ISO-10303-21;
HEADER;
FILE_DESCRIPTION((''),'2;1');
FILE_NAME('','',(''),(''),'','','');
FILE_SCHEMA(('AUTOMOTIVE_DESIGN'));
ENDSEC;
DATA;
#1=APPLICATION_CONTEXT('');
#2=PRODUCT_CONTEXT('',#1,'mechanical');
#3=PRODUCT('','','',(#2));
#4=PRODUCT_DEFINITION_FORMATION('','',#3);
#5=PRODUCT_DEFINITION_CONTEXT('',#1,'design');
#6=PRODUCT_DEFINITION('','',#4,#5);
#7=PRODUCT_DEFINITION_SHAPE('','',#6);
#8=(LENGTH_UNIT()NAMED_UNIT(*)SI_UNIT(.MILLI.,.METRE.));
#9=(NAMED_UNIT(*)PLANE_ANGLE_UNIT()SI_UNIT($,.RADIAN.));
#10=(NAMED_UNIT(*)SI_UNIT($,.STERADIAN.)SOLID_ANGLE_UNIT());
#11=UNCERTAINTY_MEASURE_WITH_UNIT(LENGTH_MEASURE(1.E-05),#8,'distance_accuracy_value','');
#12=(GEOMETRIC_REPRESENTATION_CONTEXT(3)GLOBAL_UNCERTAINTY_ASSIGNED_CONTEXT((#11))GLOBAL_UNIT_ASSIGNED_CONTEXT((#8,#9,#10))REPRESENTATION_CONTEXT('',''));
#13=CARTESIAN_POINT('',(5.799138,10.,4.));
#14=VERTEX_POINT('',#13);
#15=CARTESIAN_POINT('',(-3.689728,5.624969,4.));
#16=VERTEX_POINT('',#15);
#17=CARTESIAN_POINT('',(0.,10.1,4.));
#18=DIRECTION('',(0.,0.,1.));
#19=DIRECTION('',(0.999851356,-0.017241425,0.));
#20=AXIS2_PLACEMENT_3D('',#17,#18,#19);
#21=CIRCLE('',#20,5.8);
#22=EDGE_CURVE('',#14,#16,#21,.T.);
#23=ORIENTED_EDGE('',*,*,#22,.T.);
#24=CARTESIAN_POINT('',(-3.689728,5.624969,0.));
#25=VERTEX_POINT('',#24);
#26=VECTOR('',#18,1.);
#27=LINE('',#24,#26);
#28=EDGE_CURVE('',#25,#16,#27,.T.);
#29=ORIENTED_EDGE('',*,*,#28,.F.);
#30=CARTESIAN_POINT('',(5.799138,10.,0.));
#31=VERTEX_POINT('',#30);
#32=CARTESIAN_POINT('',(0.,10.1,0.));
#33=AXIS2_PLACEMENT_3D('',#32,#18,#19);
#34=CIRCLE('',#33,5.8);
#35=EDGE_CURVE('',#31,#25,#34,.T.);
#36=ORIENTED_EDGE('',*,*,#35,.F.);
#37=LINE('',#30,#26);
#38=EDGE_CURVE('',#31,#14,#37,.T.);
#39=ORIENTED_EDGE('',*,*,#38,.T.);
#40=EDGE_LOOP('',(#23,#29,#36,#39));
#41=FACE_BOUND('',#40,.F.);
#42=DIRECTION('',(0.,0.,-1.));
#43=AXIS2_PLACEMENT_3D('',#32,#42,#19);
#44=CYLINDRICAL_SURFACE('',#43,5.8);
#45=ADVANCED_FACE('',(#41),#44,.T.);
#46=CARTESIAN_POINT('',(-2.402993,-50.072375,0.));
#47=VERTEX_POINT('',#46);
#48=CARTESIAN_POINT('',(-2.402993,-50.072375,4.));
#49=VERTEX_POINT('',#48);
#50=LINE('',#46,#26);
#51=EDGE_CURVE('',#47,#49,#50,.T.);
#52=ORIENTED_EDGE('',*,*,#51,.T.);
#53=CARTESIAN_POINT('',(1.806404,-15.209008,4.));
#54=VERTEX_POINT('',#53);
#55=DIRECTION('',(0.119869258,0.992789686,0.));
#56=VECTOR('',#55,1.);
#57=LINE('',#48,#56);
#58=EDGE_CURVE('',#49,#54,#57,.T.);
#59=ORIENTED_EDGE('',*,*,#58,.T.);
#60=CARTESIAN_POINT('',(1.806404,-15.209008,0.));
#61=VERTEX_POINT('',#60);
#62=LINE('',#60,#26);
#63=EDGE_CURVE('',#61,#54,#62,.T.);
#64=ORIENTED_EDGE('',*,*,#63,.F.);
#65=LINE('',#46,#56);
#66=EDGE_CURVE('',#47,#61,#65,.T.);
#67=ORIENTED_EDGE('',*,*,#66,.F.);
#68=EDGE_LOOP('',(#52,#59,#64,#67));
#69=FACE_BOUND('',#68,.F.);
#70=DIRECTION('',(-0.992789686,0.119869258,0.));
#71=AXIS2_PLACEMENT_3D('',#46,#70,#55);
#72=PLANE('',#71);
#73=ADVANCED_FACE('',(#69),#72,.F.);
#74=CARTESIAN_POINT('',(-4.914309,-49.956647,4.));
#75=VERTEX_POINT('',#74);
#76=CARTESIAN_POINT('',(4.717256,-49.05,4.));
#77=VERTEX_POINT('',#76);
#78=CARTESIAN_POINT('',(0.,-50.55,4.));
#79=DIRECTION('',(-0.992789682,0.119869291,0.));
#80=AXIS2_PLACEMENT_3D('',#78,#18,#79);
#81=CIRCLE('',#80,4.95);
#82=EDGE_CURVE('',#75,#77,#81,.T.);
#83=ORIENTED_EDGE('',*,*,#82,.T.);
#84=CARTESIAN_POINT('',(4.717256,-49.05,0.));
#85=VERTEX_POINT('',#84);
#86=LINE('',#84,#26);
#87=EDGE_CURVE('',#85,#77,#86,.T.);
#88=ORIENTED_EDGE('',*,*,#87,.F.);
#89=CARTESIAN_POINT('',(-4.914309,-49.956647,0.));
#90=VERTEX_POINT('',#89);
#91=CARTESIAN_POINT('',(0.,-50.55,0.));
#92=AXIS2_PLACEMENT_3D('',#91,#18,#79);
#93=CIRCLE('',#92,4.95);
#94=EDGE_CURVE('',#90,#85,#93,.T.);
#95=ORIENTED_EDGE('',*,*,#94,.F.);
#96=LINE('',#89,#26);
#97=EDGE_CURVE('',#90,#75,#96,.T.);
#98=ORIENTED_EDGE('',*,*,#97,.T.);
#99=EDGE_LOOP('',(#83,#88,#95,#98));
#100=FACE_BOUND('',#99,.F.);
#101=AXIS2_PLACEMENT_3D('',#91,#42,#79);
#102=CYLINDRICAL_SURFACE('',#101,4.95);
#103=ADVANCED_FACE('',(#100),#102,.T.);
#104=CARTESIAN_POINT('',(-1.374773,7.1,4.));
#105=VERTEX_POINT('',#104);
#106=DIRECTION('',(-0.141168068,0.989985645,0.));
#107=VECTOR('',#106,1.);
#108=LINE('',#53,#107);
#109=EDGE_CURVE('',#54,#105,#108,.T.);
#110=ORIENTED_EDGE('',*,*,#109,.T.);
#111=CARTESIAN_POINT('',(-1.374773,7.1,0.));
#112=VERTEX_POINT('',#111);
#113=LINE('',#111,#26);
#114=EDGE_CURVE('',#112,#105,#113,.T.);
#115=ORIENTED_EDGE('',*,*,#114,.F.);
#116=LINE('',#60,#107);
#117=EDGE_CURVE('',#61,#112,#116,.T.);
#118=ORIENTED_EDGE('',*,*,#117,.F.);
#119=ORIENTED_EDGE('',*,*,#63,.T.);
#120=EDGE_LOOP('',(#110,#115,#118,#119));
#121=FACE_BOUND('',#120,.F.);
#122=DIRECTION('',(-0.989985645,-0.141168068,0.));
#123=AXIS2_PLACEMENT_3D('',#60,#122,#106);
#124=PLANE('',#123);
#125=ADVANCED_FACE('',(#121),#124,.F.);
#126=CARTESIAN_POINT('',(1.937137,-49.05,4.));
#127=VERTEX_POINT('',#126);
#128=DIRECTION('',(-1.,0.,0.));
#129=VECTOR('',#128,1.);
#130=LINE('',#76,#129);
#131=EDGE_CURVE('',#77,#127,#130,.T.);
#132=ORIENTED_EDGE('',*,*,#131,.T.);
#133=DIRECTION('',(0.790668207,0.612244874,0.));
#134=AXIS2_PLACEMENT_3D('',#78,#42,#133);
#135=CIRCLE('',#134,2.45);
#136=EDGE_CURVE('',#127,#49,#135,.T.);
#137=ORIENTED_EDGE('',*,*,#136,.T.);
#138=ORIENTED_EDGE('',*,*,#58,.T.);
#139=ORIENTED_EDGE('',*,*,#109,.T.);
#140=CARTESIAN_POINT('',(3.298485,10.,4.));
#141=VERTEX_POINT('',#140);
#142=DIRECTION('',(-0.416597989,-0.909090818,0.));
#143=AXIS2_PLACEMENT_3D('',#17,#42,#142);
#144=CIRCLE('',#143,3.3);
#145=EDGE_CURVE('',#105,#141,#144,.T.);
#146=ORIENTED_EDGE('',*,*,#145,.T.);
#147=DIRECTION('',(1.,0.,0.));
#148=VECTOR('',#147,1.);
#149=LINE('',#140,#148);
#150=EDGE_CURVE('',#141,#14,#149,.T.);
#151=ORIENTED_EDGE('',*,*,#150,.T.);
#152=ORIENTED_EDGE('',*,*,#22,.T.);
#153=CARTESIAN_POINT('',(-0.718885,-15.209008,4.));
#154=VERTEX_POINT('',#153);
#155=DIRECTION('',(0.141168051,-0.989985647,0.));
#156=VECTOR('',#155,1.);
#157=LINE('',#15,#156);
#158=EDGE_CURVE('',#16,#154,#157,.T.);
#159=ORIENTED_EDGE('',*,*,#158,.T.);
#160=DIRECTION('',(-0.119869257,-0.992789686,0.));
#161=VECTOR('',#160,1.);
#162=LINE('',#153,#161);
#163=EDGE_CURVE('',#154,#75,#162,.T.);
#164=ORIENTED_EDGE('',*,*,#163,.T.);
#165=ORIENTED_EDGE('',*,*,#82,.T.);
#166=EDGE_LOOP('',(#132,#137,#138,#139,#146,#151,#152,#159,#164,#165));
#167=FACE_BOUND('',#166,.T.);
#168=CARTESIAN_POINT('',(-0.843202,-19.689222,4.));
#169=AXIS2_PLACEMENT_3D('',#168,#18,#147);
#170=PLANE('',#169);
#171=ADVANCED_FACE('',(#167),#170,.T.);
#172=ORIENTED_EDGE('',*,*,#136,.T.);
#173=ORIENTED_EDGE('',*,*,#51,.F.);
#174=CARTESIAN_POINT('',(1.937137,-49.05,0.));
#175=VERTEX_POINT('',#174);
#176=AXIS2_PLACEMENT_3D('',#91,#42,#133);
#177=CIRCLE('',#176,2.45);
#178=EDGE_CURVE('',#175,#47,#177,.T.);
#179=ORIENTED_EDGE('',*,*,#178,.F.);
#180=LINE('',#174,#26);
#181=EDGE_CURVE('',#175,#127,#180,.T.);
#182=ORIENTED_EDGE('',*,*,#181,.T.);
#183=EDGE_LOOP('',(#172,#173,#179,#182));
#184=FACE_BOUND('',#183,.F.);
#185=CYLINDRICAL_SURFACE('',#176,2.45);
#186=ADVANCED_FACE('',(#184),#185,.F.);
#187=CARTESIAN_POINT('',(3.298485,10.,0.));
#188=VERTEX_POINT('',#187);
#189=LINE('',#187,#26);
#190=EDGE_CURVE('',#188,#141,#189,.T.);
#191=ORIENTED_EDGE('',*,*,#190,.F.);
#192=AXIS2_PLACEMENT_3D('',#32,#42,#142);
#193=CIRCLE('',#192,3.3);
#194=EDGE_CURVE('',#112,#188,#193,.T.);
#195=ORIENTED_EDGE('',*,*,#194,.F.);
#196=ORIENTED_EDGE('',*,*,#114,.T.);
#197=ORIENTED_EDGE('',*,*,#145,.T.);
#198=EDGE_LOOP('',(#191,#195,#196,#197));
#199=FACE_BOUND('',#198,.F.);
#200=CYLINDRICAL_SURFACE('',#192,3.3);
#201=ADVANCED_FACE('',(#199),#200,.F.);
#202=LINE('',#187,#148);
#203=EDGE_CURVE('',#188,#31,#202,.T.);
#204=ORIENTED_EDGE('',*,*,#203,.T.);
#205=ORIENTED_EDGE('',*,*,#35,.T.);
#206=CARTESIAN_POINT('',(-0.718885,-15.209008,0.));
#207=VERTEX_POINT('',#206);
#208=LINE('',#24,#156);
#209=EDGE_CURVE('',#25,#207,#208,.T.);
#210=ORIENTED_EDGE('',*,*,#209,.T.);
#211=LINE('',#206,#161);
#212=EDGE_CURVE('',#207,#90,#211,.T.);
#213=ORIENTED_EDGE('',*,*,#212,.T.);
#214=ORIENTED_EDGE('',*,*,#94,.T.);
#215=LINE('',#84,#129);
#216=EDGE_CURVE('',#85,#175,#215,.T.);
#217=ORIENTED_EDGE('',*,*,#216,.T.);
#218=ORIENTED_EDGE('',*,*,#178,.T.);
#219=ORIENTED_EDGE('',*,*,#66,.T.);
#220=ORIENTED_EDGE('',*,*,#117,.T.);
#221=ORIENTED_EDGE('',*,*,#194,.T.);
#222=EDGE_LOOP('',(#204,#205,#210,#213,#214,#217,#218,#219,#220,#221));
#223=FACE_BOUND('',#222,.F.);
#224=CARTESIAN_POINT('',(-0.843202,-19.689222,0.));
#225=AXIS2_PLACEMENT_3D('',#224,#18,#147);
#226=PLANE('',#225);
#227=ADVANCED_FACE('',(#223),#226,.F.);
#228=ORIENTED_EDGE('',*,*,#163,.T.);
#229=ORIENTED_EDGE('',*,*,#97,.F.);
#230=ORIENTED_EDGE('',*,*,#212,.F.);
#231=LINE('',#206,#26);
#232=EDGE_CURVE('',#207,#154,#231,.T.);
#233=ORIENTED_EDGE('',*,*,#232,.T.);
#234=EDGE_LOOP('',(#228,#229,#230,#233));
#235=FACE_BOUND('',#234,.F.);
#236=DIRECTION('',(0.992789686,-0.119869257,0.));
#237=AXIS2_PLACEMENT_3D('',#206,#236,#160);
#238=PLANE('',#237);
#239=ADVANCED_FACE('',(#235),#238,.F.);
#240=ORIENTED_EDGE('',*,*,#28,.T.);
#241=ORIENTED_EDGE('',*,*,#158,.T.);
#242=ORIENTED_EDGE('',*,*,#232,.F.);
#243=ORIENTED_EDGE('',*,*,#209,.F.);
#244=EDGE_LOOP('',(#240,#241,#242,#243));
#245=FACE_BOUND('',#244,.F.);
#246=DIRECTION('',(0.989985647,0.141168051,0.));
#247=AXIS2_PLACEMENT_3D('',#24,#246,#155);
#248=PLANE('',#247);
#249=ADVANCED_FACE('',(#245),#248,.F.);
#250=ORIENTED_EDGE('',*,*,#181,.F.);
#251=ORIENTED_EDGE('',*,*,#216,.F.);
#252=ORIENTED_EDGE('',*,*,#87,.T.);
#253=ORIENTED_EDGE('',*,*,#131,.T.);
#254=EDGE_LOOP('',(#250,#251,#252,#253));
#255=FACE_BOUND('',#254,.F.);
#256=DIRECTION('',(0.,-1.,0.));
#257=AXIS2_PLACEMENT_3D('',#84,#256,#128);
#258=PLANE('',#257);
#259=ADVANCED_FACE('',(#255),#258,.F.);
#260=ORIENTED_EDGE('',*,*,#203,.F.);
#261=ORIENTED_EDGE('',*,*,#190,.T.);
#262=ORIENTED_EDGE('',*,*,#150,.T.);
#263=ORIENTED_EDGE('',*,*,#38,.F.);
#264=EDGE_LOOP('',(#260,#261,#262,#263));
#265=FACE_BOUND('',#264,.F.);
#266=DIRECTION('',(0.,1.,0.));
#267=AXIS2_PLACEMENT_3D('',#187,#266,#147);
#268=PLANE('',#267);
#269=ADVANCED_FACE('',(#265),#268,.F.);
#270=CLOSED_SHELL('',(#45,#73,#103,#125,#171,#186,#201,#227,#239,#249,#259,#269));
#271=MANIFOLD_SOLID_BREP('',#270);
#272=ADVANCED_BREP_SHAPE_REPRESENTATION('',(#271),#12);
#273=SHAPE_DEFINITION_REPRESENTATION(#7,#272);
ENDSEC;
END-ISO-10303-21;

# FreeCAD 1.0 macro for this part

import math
import FreeCAD as App
import Part
import Sketcher

V = App.Vector
Q = App.Units.Quantity

doc = App.newDocument("Part")
body = doc.addObject("PartDesign::Body", "Body")

sketch1 = body.newObject("Sketcher::SketchObject", "Sketch")
sketch1.AttachmentSupport = (doc.getObject("XY_Plane"), [""])
sketch1.MapMode = "FlatFace"
sketch1.addGeometry([
    Part.ArcOfCircle(Part.Circle(V(0, 10.1, 0), V(0, 0, 1), 3.3), math.radians(-2), math.radians(245)),
    Part.LineSegment(V(3.3, 10, 0), V(5.8, 10, 0)),
    Part.ArcOfCircle(Part.Circle(V(0, 10.1, 0), V(0, 0, 1), 5.8), math.radians(-1), math.radians(230)),
    Part.LineSegment(V(-3.7, 5.6, 0), V(-0.7, -15.2, 0)),
    Part.LineSegment(V(-0.7, -15.2, 0), V(-4.9, -50, 0)),
    Part.ArcOfCircle(Part.Circle(V(0, -50.6, 0), V(0, 0, 1), 5), math.radians(173), math.radians(378)),
    Part.LineSegment(V(4.7, -49, 0), V(1.9, -49, 0)),
    Part.ArcOfCircle(Part.Circle(V(0, -50.5, 0), V(0, 0, 1), 2.5), math.radians(169), math.radians(398)),
    Part.LineSegment(V(-2.4, -50.1, 0), V(1.8, -15.2, 0)),
    Part.LineSegment(V(1.8, -15.2, 0), V(-1.4, 7.1, 0)),
], False)
sketch1.addConstraint([
    Sketcher.Constraint("Coincident", 0, 1, 1, 1),
    Sketcher.Constraint("Coincident", 1, 2, 2, 1),
    Sketcher.Constraint("Coincident", 2, 2, 3, 1),
    Sketcher.Constraint("Coincident", 3, 2, 4, 1),
    Sketcher.Constraint("Tangent", 4, 2, 5, 1),
    Sketcher.Constraint("Coincident", 5, 2, 6, 1),
    Sketcher.Constraint("Coincident", 6, 2, 7, 2),
    Sketcher.Constraint("Coincident", 7, 1, 8, 1),
    Sketcher.Constraint("Coincident", 8, 2, 9, 1),
    Sketcher.Constraint("Coincident", 9, 2, 0, 2),
    Sketcher.Constraint("Horizontal", 1),
    Sketcher.Constraint("Horizontal", 6),
    Sketcher.Constraint("Coincident", 2, 3, 0, 3),
    Sketcher.Constraint("Coincident", 7, 3, 5, 3),
    Sketcher.Constraint("PointOnObject", 0, 3, -2),
    Sketcher.Constraint("PointOnObject", 5, 3, -2),
    Sketcher.Constraint("Parallel", 4, 8),
    Sketcher.Constraint("Parallel", 3, 9),
    Sketcher.Constraint("Horizontal", 3, 2, 8, 2),
    Sketcher.Constraint("Radius", 0, Q("3.3 mm")),
    Sketcher.Constraint("Radius", 2, Q("5.8 mm")),
    Sketcher.Constraint("Radius", 5, Q("4.95 mm")),
    Sketcher.Constraint("Radius", 7, Q("2.45 mm")),
    Sketcher.Constraint("Distance", 4, Q("35 mm")),
    Sketcher.Constraint("DistanceY", -1, 1, 0, 1, Q("10 mm")),
    Sketcher.Constraint("DistanceY", 9, 2, 0, 3, Q("3 mm")),
    Sketcher.Constraint("DistanceY", -1, 1, 0, 3, Q("10.1 mm")),
    Sketcher.Constraint("DistanceY", 5, 3, 5, 2, Q("1.5 mm")),
    Sketcher.Constraint("DistanceY", 5, 3, -1, 1, Q("50.55 mm")),
    Sketcher.Constraint("Distance", 8, Q("35.116568 mm")),
    Sketcher.Constraint("Distance", 9, Q("22.534678 mm")),
])
pad1 = body.newObject("PartDesign::Pad", "Pad")
pad1.Profile = sketch1
pad1.Length = 4

doc.recompute()
